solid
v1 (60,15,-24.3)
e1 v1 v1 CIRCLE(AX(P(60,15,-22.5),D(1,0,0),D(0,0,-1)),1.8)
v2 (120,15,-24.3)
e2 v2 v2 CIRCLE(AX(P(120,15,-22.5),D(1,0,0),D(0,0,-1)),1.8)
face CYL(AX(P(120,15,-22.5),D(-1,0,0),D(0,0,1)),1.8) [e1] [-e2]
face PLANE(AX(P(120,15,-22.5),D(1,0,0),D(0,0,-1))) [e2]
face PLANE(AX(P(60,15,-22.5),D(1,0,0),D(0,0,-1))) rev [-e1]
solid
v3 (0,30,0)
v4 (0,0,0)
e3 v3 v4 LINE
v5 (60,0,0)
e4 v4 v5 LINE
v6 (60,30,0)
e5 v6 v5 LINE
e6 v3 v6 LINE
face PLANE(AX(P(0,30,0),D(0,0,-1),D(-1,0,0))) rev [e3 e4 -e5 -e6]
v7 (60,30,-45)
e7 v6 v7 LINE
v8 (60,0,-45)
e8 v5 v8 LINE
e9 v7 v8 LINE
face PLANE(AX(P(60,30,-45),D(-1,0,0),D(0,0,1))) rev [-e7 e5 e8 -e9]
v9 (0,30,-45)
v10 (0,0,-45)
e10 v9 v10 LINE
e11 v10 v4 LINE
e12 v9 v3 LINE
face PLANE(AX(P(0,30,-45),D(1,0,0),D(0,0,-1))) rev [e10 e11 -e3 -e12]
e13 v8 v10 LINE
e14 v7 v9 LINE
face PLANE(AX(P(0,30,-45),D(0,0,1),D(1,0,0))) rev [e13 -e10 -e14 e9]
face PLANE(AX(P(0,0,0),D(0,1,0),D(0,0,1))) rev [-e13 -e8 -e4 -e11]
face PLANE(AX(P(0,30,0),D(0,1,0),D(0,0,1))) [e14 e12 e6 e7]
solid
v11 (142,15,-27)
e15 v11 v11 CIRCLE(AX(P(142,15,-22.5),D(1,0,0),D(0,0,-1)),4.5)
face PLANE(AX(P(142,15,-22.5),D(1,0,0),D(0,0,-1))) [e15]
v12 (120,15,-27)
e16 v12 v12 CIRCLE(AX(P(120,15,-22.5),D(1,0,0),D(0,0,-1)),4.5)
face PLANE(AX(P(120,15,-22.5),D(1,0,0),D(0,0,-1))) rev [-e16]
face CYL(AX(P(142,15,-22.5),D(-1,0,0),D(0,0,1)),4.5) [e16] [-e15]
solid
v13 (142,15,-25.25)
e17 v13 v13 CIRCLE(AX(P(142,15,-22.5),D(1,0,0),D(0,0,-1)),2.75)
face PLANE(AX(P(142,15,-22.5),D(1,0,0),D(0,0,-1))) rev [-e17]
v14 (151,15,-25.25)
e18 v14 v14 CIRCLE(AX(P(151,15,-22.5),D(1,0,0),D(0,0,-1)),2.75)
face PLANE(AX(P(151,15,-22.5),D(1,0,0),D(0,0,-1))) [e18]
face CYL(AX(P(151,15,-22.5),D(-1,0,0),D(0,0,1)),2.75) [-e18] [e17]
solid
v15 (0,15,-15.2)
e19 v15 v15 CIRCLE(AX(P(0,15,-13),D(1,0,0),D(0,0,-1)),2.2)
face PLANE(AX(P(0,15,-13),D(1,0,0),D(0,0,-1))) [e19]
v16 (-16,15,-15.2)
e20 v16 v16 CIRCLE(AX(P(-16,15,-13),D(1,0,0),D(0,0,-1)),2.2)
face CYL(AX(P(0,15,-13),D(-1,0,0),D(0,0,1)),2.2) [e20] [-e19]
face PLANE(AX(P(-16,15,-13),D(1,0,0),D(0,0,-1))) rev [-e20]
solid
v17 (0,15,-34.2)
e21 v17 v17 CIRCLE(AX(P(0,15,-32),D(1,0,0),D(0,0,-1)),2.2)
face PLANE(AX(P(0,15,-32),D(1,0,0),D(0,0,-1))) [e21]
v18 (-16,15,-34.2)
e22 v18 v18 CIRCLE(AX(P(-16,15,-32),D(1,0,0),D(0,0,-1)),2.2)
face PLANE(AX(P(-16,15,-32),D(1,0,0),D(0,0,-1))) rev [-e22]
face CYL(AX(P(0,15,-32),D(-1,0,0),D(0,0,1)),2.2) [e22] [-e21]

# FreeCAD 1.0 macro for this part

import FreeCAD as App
import Part
import Sketcher
from FreeCAD import Vector
Q = App.Units.Quantity

doc = App.newDocument("Part")
body = doc.addObject("PartDesign::Body", "Body")

sketch1 = body.newObject("Sketcher::SketchObject", "Sketch")
sketch1.AttachmentSupport = (doc.getObject("XZ_Plane"), [""])
sketch1.MapMode = "FlatFace"
sketch1.addGeometry(Part.LineSegment(Vector(0, -45, 0), Vector(0, 0, 0)), False)
sketch1.addGeometry(Part.LineSegment(Vector(0, 0, 0), Vector(60, 0, 0)), False)
sketch1.addGeometry(Part.LineSegment(Vector(60, 0, 0), Vector(60, -45, 0)), False)
sketch1.addGeometry(Part.LineSegment(Vector(60, -45, 0), Vector(0, -45, 0)), False)
sketch1.addConstraint(Sketcher.Constraint("Coincident", 0, 2, 1, 1))
sketch1.addConstraint(Sketcher.Constraint("Coincident", 1, 2, 2, 1))
sketch1.addConstraint(Sketcher.Constraint("Coincident", 2, 2, 3, 1))
sketch1.addConstraint(Sketcher.Constraint("Coincident", 3, 2, 0, 1))
sketch1.addConstraint(Sketcher.Constraint("Vertical", 0))
sketch1.addConstraint(Sketcher.Constraint("Horizontal", 1))
sketch1.addConstraint(Sketcher.Constraint("Vertical", 2))
sketch1.addConstraint(Sketcher.Constraint("Horizontal", 3))
sketch1.addConstraint(Sketcher.Constraint("Coincident", 0, 2, -1, 1))
sketch1.addConstraint(Sketcher.Constraint("DistanceX", 1, 1, 1, 2, Q("60 mm")))
sketch1.addConstraint(Sketcher.Constraint("DistanceY", 0, 1, 0, 2, Q("45 mm")))
pad1 = body.newObject("PartDesign::Pad", "Pad")
pad1.Profile = sketch1
pad1.Length = 30
pad1.Reversed = True
body2 = doc.addObject("PartDesign::Body", "Body001")

sketch2 = body2.newObject("Sketcher::SketchObject", "Sketch001")
sketch2.AttachmentSupport = (doc.getObject("YZ_Plane001"), [""])
sketch2.MapMode = "FlatFace"
sketch2.AttachmentOffset = App.Placement(Vector(0, 0, -16), App.Rotation())
sketch2.addGeometry(Part.Circle(Vector(15, -13, 0), Vector(0, 0, 1), 2.2), False)
sketch2.addConstraint(Sketcher.Constraint("Diameter", 0, Q("4.4 mm")))
sketch2.addConstraint(Sketcher.Constraint("DistanceX", -1, 1, 0, 3, Q("15 mm")))
sketch2.addConstraint(Sketcher.Constraint("DistanceY", 0, 3, -1, 1, Q("13 mm")))
pad2 = body2.newObject("PartDesign::Pad", "Pad001")
pad2.Profile = sketch2
pad2.Length = 16
body3 = doc.addObject("PartDesign::Body", "Body002")

sketch3 = body3.newObject("Sketcher::SketchObject", "Sketch002")
sketch3.AttachmentSupport = (doc.getObject("YZ_Plane002"), [""])
sketch3.MapMode = "FlatFace"
sketch3.AttachmentOffset = App.Placement(Vector(0, 0, -16), App.Rotation())
sketch3.addGeometry(Part.Circle(Vector(15, -32, 0), Vector(0, 0, 1), 2.2), False)
sketch3.addConstraint(Sketcher.Constraint("Diameter", 0, Q("4.4 mm")))
sketch3.addConstraint(Sketcher.Constraint("DistanceX", -1, 1, 0, 3, Q("15 mm")))
sketch3.addConstraint(Sketcher.Constraint("DistanceY", 0, 3, -1, 1, Q("32 mm")))
pad3 = body3.newObject("PartDesign::Pad", "Pad002")
pad3.Profile = sketch3
pad3.Length = 16
body4 = doc.addObject("PartDesign::Body", "Body003")

sketch4 = body4.newObject("Sketcher::SketchObject", "Sketch003")
sketch4.AttachmentSupport = (doc.getObject("YZ_Plane003"), [""])
sketch4.MapMode = "FlatFace"
sketch4.AttachmentOffset = App.Placement(Vector(0, 0, 60), App.Rotation())
sketch4.addGeometry(Part.Circle(Vector(15, -22.5, 0), Vector(0, 0, 1), 1.8), False)
sketch4.addConstraint(Sketcher.Constraint("Diameter", 0, Q("3.6 mm")))
sketch4.addConstraint(Sketcher.Constraint("DistanceX", -1, 1, 0, 3, Q("15 mm")))
sketch4.addConstraint(Sketcher.Constraint("DistanceY", 0, 3, -1, 1, Q("22.5 mm")))
pad4 = body4.newObject("PartDesign::Pad", "Pad003")
pad4.Profile = sketch4
pad4.Length = 60
body5 = doc.addObject("PartDesign::Body", "Body004")

sketch5 = body5.newObject("Sketcher::SketchObject", "Sketch004")
sketch5.AttachmentSupport = (doc.getObject("YZ_Plane004"), [""])
sketch5.MapMode = "FlatFace"
sketch5.AttachmentOffset = App.Placement(Vector(0, 0, 120), App.Rotation())
sketch5.addGeometry(Part.Circle(Vector(15, -22.5, 0), Vector(0, 0, 1), 4.5), False)
sketch5.addConstraint(Sketcher.Constraint("Diameter", 0, Q("9 mm")))
sketch5.addConstraint(Sketcher.Constraint("DistanceX", -1, 1, 0, 3, Q("15 mm")))
sketch5.addConstraint(Sketcher.Constraint("DistanceY", 0, 3, -1, 1, Q("22.5 mm")))
pad5 = body5.newObject("PartDesign::Pad", "Pad004")
pad5.Profile = sketch5
pad5.Length = 22
body6 = doc.addObject("PartDesign::Body", "Body005")

sketch6 = body6.newObject("Sketcher::SketchObject", "Sketch005")
sketch6.AttachmentSupport = (doc.getObject("YZ_Plane005"), [""])
sketch6.MapMode = "FlatFace"
sketch6.AttachmentOffset = App.Placement(Vector(0, 0, 142), App.Rotation())
sketch6.addGeometry(Part.Circle(Vector(15, -22.5, 0), Vector(0, 0, 1), 2.8), False)
sketch6.addConstraint(Sketcher.Constraint("Diameter", 0, Q("5.5 mm")))
sketch6.addConstraint(Sketcher.Constraint("DistanceX", -1, 1, 0, 3, Q("15 mm")))
sketch6.addConstraint(Sketcher.Constraint("DistanceY", 0, 3, -1, 1, Q("22.5 mm")))
pad6 = body6.newObject("PartDesign::Pad", "Pad005")
pad6.Profile = sketch6
pad6.Length = 9

doc.recompute()
